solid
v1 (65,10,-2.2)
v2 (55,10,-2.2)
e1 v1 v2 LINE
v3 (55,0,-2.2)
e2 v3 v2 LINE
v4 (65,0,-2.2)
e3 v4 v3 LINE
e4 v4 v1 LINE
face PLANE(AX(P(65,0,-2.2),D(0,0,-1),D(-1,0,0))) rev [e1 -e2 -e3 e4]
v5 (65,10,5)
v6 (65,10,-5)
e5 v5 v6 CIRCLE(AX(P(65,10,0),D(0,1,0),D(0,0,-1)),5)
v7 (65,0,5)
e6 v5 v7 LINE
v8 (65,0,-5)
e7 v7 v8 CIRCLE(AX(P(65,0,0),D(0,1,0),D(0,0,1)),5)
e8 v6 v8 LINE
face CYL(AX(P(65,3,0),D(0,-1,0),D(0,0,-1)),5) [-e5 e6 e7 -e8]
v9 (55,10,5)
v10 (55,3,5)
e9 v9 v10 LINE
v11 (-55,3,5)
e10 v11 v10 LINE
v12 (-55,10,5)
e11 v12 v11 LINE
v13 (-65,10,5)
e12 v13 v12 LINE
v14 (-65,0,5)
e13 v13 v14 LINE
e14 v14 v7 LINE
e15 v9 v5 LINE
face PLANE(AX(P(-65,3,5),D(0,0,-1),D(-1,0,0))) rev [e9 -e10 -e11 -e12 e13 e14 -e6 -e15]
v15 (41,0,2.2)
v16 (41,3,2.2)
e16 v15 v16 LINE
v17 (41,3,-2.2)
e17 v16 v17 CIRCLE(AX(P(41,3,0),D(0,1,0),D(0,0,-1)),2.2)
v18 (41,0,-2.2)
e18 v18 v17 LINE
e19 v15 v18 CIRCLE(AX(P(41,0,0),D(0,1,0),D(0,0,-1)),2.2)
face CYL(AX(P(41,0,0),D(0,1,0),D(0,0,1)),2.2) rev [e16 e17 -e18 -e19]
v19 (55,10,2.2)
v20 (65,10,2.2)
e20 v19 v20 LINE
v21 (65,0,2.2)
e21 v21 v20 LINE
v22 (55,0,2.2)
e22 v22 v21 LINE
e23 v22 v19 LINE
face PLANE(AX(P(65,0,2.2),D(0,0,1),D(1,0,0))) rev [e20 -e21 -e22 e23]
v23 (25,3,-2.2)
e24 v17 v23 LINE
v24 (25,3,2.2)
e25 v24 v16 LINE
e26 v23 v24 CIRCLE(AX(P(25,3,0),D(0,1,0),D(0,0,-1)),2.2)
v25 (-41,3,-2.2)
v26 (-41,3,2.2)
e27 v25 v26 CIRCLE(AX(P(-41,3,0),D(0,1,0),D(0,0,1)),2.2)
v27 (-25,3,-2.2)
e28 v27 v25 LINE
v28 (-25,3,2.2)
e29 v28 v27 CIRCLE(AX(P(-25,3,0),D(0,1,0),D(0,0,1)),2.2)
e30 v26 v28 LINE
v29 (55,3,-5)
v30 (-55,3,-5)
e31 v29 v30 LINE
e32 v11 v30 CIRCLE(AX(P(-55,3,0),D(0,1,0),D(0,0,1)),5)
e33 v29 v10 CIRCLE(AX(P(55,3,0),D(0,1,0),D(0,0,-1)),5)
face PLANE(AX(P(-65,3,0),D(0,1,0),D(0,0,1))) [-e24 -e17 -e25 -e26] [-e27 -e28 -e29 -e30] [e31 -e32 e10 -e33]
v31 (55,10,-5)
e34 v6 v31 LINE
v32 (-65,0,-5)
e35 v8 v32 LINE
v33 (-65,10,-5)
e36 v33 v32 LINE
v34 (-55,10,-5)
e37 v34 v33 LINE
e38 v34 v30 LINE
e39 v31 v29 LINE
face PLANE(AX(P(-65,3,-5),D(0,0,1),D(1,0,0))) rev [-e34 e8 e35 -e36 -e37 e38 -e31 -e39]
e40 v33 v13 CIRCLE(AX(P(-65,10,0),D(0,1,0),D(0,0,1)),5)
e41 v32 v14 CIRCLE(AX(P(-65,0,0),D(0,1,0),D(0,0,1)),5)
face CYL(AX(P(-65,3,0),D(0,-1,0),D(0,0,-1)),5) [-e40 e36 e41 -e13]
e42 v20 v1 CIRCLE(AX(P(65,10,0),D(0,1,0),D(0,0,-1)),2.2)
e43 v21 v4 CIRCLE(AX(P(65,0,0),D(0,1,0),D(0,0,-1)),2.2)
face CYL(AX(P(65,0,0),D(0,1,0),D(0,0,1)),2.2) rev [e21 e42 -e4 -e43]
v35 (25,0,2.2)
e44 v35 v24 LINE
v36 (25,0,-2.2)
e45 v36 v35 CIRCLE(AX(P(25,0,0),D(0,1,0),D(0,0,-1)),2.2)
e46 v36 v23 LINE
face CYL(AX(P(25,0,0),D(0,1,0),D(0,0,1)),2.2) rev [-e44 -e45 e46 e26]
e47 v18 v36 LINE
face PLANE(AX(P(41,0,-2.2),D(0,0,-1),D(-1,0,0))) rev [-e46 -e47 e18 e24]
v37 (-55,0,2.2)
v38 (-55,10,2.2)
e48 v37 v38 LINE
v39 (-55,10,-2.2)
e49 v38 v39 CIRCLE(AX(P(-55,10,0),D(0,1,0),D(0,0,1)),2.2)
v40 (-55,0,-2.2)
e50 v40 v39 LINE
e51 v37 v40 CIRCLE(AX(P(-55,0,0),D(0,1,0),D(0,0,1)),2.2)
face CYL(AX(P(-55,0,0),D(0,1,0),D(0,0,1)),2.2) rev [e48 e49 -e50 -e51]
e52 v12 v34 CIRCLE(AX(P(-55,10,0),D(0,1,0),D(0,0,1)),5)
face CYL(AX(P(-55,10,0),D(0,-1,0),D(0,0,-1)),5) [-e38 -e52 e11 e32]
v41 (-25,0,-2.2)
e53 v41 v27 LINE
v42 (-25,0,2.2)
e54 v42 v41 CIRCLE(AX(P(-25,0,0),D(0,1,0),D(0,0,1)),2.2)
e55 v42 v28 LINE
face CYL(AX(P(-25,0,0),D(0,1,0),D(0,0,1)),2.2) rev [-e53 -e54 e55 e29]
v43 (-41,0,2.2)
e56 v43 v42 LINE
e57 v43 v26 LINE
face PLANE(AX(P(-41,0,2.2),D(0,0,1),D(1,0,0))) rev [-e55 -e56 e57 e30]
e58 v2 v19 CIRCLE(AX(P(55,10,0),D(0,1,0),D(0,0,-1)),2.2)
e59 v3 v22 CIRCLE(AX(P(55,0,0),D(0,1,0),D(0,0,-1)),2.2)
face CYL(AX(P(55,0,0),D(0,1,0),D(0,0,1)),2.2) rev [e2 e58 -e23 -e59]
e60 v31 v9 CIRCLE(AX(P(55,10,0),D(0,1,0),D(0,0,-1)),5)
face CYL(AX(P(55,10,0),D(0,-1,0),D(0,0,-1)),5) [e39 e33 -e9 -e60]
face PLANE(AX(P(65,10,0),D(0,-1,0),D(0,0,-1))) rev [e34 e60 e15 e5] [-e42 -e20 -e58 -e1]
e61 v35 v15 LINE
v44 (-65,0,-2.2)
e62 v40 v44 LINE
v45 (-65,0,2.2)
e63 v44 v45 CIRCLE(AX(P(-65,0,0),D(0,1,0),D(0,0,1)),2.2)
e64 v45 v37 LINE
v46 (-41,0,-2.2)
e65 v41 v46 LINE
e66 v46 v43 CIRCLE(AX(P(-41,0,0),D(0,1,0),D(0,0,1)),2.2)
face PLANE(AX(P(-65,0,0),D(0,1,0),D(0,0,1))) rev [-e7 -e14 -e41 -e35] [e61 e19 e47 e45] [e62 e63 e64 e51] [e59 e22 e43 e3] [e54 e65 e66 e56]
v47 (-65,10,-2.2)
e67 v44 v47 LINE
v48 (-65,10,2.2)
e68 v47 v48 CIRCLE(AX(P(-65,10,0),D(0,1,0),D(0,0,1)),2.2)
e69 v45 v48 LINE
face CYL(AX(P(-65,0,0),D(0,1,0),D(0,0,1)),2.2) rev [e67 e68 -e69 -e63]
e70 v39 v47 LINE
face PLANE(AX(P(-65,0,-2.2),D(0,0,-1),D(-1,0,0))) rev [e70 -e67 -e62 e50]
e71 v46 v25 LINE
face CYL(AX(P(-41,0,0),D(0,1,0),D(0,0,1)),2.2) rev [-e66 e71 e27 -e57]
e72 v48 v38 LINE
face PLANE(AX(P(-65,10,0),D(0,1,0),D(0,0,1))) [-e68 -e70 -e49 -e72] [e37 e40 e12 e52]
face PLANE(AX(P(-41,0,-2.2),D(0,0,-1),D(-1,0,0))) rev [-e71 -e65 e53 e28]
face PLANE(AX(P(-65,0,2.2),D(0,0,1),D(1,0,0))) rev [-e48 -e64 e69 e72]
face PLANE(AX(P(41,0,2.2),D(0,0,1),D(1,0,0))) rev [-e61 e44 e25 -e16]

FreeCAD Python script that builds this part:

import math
import FreeCAD as App
import Part
import Sketcher
from FreeCAD import Vector

doc = App.newDocument("Part")
body = doc.addObject("PartDesign::Body", "Body")

# Sketch on XZ plane
sketch1 = doc.addObject("Sketcher::SketchObject", "Sketch")
body.addObject(sketch1)
sketch1.AttachmentSupport = (doc.XZ_Plane, [""])
sketch1.MapMode = "FlatFace"
sketch1.addGeometry(Part.LineSegment(Vector(65, -5, 0), Vector(-65, -5, 0)), False)
sketch1.addGeometry(Part.ArcOfCircle(Part.Circle(Vector(-65, 0, 0), Vector(0, 0, 1), 5), math.radians(90), math.radians(270)), False)
sketch1.addGeometry(Part.LineSegment(Vector(-65, 5, 0), Vector(65, 5, 0)), False)
sketch1.addGeometry(Part.ArcOfCircle(Part.Circle(Vector(65, 0, 0), Vector(0, 0, 1), 5), math.radians(-90), math.radians(90)), False)
sketch1.addConstraint(Sketcher.Constraint("Tangent", 0, 2, 1, 2))
sketch1.addConstraint(Sketcher.Constraint("Tangent", 1, 1, 2, 1))
sketch1.addConstraint(Sketcher.Constraint("Tangent", 2, 2, 3, 2))
sketch1.addConstraint(Sketcher.Constraint("Tangent", 3, 1, 0, 1))
sketch1.addConstraint(Sketcher.Constraint("Horizontal", 0))
sketch1.addConstraint(Sketcher.Constraint("Horizontal", 2))
sketch1.addConstraint(Sketcher.Constraint("Symmetric", 1, 3, 3, 3, -1, 1))
sketch1.addConstraint(Sketcher.Constraint("Radius", 1, 5.0))
sketch1.addConstraint(Sketcher.Constraint("DistanceX", 0, 2, 0, 1, 130.0))
pad1 = doc.addObject("PartDesign::Pad", "Pad")
body.addObject(pad1)
pad1.Profile = sketch1
pad1.Length = 3
pad1.Reversed = True

# Sketch on XZ plane
sketch2 = doc.addObject("Sketcher::SketchObject", "Sketch001")
body.addObject(sketch2)
sketch2.AttachmentSupport = (doc.XZ_Plane, [""])
sketch2.MapMode = "FlatFace"
sketch2.AttachmentOffset = App.Placement(Vector(0, 0, -3), App.Rotation())
sketch2.addGeometry(Part.LineSegment(Vector(-55, -5, 0), Vector(-65, -5, 0)), False)
sketch2.addGeometry(Part.ArcOfCircle(Part.Circle(Vector(-65, 0, 0), Vector(0, 0, 1), 5), math.radians(90), math.radians(270)), False)
sketch2.addGeometry(Part.LineSegment(Vector(-65, 5, 0), Vector(-55, 5, 0)), False)
sketch2.addGeometry(Part.ArcOfCircle(Part.Circle(Vector(-55, 0, 0), Vector(0, 0, 1), 5), math.radians(-90), math.radians(90)), False)
sketch2.addGeometry(Part.LineSegment(Vector(65, -5, 0), Vector(55, -5, 0)), False)
sketch2.addGeometry(Part.ArcOfCircle(Part.Circle(Vector(55, 0, 0), Vector(0, 0, 1), 5), math.radians(90), math.radians(270)), False)
sketch2.addGeometry(Part.LineSegment(Vector(55, 5, 0), Vector(65, 5, 0)), False)
sketch2.addGeometry(Part.ArcOfCircle(Part.Circle(Vector(65, 0, 0), Vector(0, 0, 1), 5), math.radians(-90), math.radians(90)), False)
sketch2.addConstraint(Sketcher.Constraint("Tangent", 0, 2, 1, 2))
sketch2.addConstraint(Sketcher.Constraint("Tangent", 1, 1, 2, 1))
sketch2.addConstraint(Sketcher.Constraint("Tangent", 2, 2, 3, 2))
sketch2.addConstraint(Sketcher.Constraint("Tangent", 3, 1, 0, 1))
sketch2.addConstraint(Sketcher.Constraint("Tangent", 4, 2, 5, 2))
sketch2.addConstraint(Sketcher.Constraint("Tangent", 5, 1, 6, 1))
sketch2.addConstraint(Sketcher.Constraint("Tangent", 6, 2, 7, 2))
sketch2.addConstraint(Sketcher.Constraint("Tangent", 7, 1, 4, 1))
sketch2.addConstraint(Sketcher.Constraint("Horizontal", 0))
sketch2.addConstraint(Sketcher.Constraint("Horizontal", 2))
sketch2.addConstraint(Sketcher.Constraint("Horizontal", 4))
sketch2.addConstraint(Sketcher.Constraint("Horizontal", 6))
sketch2.addConstraint(Sketcher.Constraint("Equal", 3, 5))
sketch2.addConstraint(Sketcher.Constraint("Symmetric", 3, 3, 5, 3, -1, 1))
sketch2.addConstraint(Sketcher.Constraint("Symmetric", 1, 3, 7, 3, -2))
sketch2.addConstraint(Sketcher.Constraint("Radius", 1, 5.0))
sketch2.addConstraint(Sketcher.Constraint("DistanceX", 0, 2, 0, 1, 10.0))
sketch2.addConstraint(Sketcher.Constraint("DistanceX", 1, 3, -1, 1, 65.0))
pad2 = doc.addObject("PartDesign::Pad", "Pad001")
body.addObject(pad2)
pad2.Profile = sketch2
pad2.Length = 7
pad2.Reversed = True

# Sketch on XZ plane
sketch3 = doc.addObject("Sketcher::SketchObject", "Sketch002")
body.addObject(sketch3)
sketch3.AttachmentSupport = (doc.XZ_Plane, [""])
sketch3.MapMode = "FlatFace"
sketch3.AttachmentOffset = App.Placement(Vector(0, 0, -10), App.Rotation())
sketch3.addGeometry(Part.LineSegment(Vector(-55, -2.2, 0), Vector(-65, -2.2, 0)), False)
sketch3.addGeometry(Part.ArcOfCircle(Part.Circle(Vector(-65, 0, 0), Vector(0, 0, 1), 2.2), math.radians(90), math.radians(270)), False)
sketch3.addGeometry(Part.LineSegment(Vector(-65, 2.2, 0), Vector(-55, 2.2, 0)), False)
sketch3.addGeometry(Part.ArcOfCircle(Part.Circle(Vector(-55, 0, 0), Vector(0, 0, 1), 2.2), math.radians(-90), math.radians(90)), False)
sketch3.addGeometry(Part.LineSegment(Vector(65, -2.2, 0), Vector(55, -2.2, 0)), False)
sketch3.addGeometry(Part.ArcOfCircle(Part.Circle(Vector(55, 0, 0), Vector(0, 0, 1), 2.2), math.radians(90), math.radians(270)), False)
sketch3.addGeometry(Part.LineSegment(Vector(55, 2.2, 0), Vector(65, 2.2, 0)), False)
sketch3.addGeometry(Part.ArcOfCircle(Part.Circle(Vector(65, 0, 0), Vector(0, 0, 1), 2.2), math.radians(-90), math.radians(90)), False)
sketch3.addConstraint(Sketcher.Constraint("Tangent", 0, 2, 1, 2))
sketch3.addConstraint(Sketcher.Constraint("Tangent", 1, 1, 2, 1))
sketch3.addConstraint(Sketcher.Constraint("Tangent", 2, 2, 3, 2))
sketch3.addConstraint(Sketcher.Constraint("Tangent", 3, 1, 0, 1))
sketch3.addConstraint(Sketcher.Constraint("Tangent", 4, 2, 5, 2))
sketch3.addConstraint(Sketcher.Constraint("Tangent", 5, 1, 6, 1))
sketch3.addConstraint(Sketcher.Constraint("Tangent", 6, 2, 7, 2))
sketch3.addConstraint(Sketcher.Constraint("Tangent", 7, 1, 4, 1))
sketch3.addConstraint(Sketcher.Constraint("Horizontal", 0))
sketch3.addConstraint(Sketcher.Constraint("Horizontal", 2))
sketch3.addConstraint(Sketcher.Constraint("Horizontal", 4))
sketch3.addConstraint(Sketcher.Constraint("Horizontal", 6))
sketch3.addConstraint(Sketcher.Constraint("Equal", 3, 5))
sketch3.addConstraint(Sketcher.Constraint("Symmetric", 3, 3, 5, 3, -1, 1))
sketch3.addConstraint(Sketcher.Constraint("Symmetric", 1, 3, 7, 3, -2))
sketch3.addConstraint(Sketcher.Constraint("Radius", 1, 2.2))
sketch3.addConstraint(Sketcher.Constraint("DistanceX", 0, 2, 0, 1, 10.0))
sketch3.addConstraint(Sketcher.Constraint("DistanceX", 1, 3, -1, 1, 65.0))
pocket1 = doc.addObject("PartDesign::Pocket", "Pocket")
body.addObject(pocket1)
pocket1.Profile = sketch3
pocket1.Type = "ThroughAll"
pocket1.Reversed = True

# Sketch on XZ plane
sketch4 = doc.addObject("Sketcher::SketchObject", "Sketch003")
body.addObject(sketch4)
sketch4.AttachmentSupport = (doc.XZ_Plane, [""])
sketch4.MapMode = "FlatFace"
sketch4.AttachmentOffset = App.Placement(Vector(0, 0, -3), App.Rotation())
sketch4.addGeometry(Part.LineSegment(Vector(-25, -2.2, 0), Vector(-41, -2.2, 0)), False)
sketch4.addGeometry(Part.ArcOfCircle(Part.Circle(Vector(-41, 0, 0), Vector(0, 0, 1), 2.2), math.radians(90), math.radians(270)), False)
sketch4.addGeometry(Part.LineSegment(Vector(-41, 2.2, 0), Vector(-25, 2.2, 0)), False)
sketch4.addGeometry(Part.ArcOfCircle(Part.Circle(Vector(-25, 0, 0), Vector(0, 0, 1), 2.2), math.radians(-90), math.radians(90)), False)
sketch4.addGeometry(Part.LineSegment(Vector(41, -2.2, 0), Vector(25, -2.2, 0)), False)
sketch4.addGeometry(Part.ArcOfCircle(Part.Circle(Vector(25, 0, 0), Vector(0, 0, 1), 2.2), math.radians(90), math.radians(270)), False)
sketch4.addGeometry(Part.LineSegment(Vector(25, 2.2, 0), Vector(41, 2.2, 0)), False)
sketch4.addGeometry(Part.ArcOfCircle(Part.Circle(Vector(41, 0, 0), Vector(0, 0, 1), 2.2), math.radians(-90), math.radians(90)), False)
sketch4.addConstraint(Sketcher.Constraint("Tangent", 0, 2, 1, 2))
sketch4.addConstraint(Sketcher.Constraint("Tangent", 1, 1, 2, 1))
sketch4.addConstraint(Sketcher.Constraint("Tangent", 2, 2, 3, 2))
sketch4.addConstraint(Sketcher.Constraint("Tangent", 3, 1, 0, 1))
sketch4.addConstraint(Sketcher.Constraint("Tangent", 4, 2, 5, 2))
sketch4.addConstraint(Sketcher.Constraint("Tangent", 5, 1, 6, 1))
sketch4.addConstraint(Sketcher.Constraint("Tangent", 6, 2, 7, 2))
sketch4.addConstraint(Sketcher.Constraint("Tangent", 7, 1, 4, 1))
sketch4.addConstraint(Sketcher.Constraint("Horizontal", 0))
sketch4.addConstraint(Sketcher.Constraint("Horizontal", 2))
sketch4.addConstraint(Sketcher.Constraint("Horizontal", 4))
sketch4.addConstraint(Sketcher.Constraint("Horizontal", 6))
sketch4.addConstraint(Sketcher.Constraint("Equal", 3, 5))
sketch4.addConstraint(Sketcher.Constraint("Symmetric", 3, 3, 5, 3, -1, 1))
sketch4.addConstraint(Sketcher.Constraint("Symmetric", 1, 3, 7, 3, -2))
sketch4.addConstraint(Sketcher.Constraint("Radius", 1, 2.2))
sketch4.addConstraint(Sketcher.Constraint("DistanceX", 0, 2, 0, 1, 16.0))
sketch4.addConstraint(Sketcher.Constraint("DistanceX", 1, 3, -1, 1, 41.0))
pocket2 = doc.addObject("PartDesign::Pocket", "Pocket001")
body.addObject(pocket2)
pocket2.Profile = sketch4
pocket2.Type = "ThroughAll"
pocket2.Reversed = True

doc.recompute()
